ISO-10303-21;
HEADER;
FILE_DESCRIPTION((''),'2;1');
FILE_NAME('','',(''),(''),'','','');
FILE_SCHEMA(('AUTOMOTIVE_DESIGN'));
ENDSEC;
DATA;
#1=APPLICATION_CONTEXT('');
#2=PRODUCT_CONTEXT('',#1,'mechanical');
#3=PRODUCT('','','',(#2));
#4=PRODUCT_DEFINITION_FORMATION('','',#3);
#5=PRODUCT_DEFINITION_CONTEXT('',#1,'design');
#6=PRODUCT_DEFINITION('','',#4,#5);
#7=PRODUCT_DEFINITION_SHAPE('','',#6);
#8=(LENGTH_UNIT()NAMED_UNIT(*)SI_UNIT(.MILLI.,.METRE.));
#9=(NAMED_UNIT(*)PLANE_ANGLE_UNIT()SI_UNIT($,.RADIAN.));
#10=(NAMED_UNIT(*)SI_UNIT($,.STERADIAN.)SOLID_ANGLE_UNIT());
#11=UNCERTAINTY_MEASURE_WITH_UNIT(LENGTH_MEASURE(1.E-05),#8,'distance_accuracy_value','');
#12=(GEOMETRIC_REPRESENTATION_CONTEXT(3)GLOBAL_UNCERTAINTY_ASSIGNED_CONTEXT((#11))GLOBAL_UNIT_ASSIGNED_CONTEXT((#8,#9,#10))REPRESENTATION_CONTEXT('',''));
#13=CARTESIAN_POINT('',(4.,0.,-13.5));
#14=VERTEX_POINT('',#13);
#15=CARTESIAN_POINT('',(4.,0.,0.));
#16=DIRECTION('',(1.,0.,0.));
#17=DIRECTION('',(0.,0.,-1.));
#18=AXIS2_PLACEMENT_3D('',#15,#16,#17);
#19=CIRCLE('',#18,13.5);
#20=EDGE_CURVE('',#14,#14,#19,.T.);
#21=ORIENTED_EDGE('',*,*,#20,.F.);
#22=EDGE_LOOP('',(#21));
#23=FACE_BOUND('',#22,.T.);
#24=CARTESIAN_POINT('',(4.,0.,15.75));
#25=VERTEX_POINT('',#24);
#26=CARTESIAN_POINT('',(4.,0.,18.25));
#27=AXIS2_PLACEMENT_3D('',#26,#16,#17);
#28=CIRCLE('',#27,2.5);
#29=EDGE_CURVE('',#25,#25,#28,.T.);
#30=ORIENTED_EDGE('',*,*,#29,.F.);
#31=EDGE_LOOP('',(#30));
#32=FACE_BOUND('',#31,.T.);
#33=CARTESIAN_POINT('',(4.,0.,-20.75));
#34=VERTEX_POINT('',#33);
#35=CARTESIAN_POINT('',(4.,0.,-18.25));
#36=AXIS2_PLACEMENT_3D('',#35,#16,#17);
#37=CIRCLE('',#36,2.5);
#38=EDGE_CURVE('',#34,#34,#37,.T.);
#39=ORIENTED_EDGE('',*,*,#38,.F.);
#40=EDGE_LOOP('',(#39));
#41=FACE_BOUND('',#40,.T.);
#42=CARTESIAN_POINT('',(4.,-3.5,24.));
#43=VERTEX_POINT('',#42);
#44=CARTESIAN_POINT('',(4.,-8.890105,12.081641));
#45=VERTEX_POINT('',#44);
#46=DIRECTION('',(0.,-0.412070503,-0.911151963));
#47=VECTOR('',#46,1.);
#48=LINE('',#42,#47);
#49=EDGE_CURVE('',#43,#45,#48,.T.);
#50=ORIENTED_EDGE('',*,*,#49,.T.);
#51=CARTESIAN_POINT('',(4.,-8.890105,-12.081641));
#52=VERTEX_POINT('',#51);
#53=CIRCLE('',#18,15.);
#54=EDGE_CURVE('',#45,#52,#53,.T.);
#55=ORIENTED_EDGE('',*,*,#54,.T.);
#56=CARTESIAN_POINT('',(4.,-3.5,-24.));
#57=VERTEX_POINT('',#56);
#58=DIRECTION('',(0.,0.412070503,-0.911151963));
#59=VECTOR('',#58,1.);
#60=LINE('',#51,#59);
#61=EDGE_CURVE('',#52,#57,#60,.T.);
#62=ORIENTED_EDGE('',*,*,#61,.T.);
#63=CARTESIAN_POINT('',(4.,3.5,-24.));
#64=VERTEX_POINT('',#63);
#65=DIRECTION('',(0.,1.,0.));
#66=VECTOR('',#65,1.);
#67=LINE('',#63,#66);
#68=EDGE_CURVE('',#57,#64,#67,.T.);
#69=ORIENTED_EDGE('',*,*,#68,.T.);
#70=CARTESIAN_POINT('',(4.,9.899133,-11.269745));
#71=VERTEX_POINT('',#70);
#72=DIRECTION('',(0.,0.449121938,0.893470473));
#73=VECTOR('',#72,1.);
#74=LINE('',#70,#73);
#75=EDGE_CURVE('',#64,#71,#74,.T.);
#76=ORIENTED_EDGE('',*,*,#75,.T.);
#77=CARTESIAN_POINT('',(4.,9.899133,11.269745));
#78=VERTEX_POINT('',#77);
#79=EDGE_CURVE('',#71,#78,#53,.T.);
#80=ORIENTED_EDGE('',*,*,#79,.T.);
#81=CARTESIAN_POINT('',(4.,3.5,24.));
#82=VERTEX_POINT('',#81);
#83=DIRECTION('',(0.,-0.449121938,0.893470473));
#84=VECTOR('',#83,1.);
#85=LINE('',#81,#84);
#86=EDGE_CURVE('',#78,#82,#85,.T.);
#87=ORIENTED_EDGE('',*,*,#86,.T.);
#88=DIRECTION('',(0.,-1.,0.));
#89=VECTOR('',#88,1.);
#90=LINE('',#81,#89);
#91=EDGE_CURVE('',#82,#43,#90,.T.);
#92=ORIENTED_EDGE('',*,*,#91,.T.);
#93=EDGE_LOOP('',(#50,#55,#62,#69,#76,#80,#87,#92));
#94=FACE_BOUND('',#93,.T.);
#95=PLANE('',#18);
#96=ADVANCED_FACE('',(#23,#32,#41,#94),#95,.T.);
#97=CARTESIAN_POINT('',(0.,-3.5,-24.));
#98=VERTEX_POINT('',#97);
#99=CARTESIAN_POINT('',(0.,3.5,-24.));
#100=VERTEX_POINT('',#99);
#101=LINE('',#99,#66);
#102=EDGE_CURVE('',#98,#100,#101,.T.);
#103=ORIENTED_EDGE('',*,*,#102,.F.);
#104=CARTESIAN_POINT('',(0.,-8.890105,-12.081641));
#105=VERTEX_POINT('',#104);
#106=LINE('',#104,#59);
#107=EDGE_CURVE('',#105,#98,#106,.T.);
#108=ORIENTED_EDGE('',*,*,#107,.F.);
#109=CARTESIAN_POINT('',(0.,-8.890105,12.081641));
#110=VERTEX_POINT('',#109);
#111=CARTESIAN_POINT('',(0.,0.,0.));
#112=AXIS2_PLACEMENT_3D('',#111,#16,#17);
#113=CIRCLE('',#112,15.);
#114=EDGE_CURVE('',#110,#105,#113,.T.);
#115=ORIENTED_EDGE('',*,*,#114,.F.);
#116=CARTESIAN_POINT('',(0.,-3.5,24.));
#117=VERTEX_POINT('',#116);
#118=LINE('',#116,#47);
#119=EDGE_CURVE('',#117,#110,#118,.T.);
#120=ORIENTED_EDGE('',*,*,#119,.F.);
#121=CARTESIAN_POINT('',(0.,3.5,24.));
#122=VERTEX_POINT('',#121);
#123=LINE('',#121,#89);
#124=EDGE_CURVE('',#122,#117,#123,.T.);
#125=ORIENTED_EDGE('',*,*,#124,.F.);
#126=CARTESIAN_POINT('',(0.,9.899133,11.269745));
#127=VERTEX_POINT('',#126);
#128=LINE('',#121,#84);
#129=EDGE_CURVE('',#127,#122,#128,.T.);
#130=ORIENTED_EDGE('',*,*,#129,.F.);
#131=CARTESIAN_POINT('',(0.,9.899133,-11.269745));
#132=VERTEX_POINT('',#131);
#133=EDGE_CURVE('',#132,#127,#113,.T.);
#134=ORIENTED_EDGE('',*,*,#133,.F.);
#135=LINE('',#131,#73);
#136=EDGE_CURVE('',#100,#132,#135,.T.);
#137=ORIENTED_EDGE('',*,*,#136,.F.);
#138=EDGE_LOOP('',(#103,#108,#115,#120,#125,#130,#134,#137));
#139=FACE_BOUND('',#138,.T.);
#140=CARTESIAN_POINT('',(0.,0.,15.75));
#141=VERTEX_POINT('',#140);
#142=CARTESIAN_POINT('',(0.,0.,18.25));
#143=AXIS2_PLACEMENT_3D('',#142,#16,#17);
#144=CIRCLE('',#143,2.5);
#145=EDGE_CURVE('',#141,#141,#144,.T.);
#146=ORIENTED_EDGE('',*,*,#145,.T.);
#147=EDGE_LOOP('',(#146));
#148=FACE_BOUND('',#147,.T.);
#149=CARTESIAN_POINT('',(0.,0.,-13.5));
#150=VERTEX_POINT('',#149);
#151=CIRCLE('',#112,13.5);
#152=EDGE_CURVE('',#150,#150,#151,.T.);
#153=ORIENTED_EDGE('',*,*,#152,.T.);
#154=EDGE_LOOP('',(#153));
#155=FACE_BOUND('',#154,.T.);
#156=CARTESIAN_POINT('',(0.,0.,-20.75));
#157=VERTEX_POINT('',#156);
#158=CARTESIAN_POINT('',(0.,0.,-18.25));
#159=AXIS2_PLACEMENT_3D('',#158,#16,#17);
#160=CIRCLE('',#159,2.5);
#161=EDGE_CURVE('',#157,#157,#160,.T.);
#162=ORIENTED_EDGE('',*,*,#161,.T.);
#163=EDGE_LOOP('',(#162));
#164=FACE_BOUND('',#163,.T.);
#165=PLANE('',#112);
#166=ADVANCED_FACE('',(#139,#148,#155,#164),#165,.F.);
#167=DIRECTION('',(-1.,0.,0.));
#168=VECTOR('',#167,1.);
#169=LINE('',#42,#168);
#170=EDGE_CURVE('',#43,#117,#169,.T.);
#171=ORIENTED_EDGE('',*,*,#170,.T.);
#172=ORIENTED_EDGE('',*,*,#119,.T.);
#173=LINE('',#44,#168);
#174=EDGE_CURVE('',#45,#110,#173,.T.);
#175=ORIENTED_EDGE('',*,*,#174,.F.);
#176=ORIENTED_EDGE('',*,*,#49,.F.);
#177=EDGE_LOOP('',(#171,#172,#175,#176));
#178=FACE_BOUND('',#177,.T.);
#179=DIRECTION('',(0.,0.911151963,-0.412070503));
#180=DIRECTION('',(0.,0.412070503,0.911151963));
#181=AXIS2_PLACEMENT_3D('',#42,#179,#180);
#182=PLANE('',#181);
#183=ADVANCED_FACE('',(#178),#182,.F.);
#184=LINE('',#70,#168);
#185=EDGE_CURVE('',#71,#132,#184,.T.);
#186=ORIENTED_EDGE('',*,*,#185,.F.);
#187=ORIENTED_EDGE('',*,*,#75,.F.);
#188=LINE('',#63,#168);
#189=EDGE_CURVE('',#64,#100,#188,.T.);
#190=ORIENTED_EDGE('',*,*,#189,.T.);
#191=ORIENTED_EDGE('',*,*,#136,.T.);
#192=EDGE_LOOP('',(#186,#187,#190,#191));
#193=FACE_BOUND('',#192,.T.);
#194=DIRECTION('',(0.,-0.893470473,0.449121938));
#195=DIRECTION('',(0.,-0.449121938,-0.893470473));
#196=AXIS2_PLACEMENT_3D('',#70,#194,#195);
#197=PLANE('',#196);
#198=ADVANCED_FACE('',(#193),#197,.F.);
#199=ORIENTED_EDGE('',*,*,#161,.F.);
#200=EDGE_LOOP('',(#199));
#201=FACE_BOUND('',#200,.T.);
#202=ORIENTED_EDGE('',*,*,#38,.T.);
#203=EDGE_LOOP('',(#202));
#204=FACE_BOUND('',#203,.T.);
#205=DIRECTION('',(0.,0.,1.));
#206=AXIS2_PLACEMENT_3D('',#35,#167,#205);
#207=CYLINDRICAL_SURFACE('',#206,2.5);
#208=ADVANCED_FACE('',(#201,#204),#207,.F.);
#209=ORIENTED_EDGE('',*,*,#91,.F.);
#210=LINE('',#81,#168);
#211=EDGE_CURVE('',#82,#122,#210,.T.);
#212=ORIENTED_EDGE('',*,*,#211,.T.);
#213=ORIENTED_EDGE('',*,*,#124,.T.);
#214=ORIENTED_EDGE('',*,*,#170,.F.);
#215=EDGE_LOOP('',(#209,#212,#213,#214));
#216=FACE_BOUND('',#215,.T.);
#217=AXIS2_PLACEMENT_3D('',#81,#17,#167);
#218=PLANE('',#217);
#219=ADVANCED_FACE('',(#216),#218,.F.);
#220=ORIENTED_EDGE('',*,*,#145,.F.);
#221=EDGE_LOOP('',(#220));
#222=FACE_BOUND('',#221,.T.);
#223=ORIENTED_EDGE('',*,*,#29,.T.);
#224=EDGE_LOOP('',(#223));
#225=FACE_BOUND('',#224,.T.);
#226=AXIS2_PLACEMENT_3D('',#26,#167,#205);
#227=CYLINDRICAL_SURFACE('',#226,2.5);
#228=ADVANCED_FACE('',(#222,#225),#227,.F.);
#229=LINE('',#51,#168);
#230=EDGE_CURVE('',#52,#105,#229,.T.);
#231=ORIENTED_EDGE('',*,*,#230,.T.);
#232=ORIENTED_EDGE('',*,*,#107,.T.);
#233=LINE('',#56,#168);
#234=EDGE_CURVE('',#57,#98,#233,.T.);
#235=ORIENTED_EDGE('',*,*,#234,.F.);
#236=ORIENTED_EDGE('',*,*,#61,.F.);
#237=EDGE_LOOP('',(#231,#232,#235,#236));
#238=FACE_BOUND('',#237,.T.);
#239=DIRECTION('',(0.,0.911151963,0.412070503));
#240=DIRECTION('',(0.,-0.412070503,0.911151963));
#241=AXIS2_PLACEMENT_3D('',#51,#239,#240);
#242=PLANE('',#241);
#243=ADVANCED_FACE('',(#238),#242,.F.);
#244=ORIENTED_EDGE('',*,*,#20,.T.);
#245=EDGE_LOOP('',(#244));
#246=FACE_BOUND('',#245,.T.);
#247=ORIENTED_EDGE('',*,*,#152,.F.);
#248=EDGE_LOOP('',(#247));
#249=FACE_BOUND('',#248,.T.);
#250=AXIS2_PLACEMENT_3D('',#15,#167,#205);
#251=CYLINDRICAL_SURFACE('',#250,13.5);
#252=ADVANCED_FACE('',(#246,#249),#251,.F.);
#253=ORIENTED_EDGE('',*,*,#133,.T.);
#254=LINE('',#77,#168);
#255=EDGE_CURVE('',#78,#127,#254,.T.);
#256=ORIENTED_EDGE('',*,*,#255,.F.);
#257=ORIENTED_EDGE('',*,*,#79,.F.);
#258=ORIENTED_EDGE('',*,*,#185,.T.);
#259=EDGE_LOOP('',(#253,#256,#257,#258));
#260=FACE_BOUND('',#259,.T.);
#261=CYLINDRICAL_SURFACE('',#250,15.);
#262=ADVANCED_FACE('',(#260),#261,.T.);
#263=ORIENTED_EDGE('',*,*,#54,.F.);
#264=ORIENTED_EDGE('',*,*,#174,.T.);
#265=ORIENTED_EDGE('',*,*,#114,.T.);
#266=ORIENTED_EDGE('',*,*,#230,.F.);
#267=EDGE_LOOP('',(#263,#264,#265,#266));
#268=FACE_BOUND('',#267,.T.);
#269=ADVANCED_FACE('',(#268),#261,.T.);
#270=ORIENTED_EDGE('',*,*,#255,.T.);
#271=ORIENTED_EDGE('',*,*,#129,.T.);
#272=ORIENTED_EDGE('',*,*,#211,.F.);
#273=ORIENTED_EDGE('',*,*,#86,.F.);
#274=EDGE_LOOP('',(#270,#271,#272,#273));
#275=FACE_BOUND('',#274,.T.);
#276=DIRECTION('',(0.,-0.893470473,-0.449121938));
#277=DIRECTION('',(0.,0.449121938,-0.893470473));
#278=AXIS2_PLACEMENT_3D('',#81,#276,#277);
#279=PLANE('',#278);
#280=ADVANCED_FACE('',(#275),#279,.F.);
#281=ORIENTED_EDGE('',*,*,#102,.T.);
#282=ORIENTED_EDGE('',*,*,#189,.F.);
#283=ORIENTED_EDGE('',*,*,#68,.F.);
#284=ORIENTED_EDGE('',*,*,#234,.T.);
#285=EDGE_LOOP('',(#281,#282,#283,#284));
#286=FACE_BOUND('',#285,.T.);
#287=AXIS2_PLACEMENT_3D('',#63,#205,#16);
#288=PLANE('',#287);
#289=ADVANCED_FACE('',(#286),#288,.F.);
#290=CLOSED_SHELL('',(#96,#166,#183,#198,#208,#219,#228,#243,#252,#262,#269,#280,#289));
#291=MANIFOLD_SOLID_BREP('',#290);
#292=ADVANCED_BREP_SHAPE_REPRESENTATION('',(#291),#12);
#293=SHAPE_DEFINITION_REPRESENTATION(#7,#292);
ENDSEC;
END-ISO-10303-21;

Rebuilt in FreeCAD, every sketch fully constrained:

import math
import FreeCAD as App
import Part
import Sketcher

V = App.Vector

doc = App.newDocument("Part")
body = doc.addObject("PartDesign::Body", "Body")

# Sketch on YZ plane
sketch1 = body.newObject("Sketcher::SketchObject", "Sketch")
sketch1.AttachmentSupport = (doc.getObject("YZ_Plane"), [""])
sketch1.MapMode = "FlatFace"
sketch1.addGeometry([
    Part.LineSegment(V(3.5, 24, 0), V(-3.5, 24, 0)),  # 0
    Part.LineSegment(V(-3.5, 24, 0), V(-8.9, 12.1, 0)),  # 1
    Part.ArcOfCircle(Part.Circle(V(0, 0, 0), V(0, 0, 1), 15), math.radians(126), math.radians(234)),  # 2
    Part.LineSegment(V(-8.9, -12.1, 0), V(-3.5, -24, 0)),  # 3
    Part.LineSegment(V(-3.5, -24, 0), V(3.5, -24, 0)),  # 4
    Part.LineSegment(V(3.5, -24, 0), V(9.9, -11.3, 0)),  # 5
    Part.ArcOfCircle(Part.Circle(V(0, 0, 0), V(0, 0, 1), 15), math.radians(-49), math.radians(49)),  # 6
    Part.LineSegment(V(9.9, 11.3, 0), V(3.5, 24, 0)),  # 7
    Part.Circle(V(0, 18.2, 0), V(0, 0, 1), 2.5),  # 8
    Part.Circle(V(0, 0, 0), V(0, 0, 1), 13.5),  # 9
    Part.Circle(V(0, -18.2, 0), V(0, 0, 1), 2.5),  # 10
], False)
sketch1.addConstraint([
    Sketcher.Constraint("Coincident", 0, 2, 1, 1),
    Sketcher.Constraint("Coincident", 1, 2, 2, 1),
    Sketcher.Constraint("Coincident", 2, 2, 3, 1),
    Sketcher.Constraint("Coincident", 3, 2, 4, 1),
    Sketcher.Constraint("Coincident", 4, 2, 5, 1),
    Sketcher.Constraint("Coincident", 5, 2, 6, 1),
    Sketcher.Constraint("Coincident", 6, 2, 7, 1),
    Sketcher.Constraint("Coincident", 7, 2, 0, 1),
    Sketcher.Constraint("Horizontal", 0),
    Sketcher.Constraint("Horizontal", 4),
    Sketcher.Constraint("Coincident", 2, 3, -1, 1),
    Sketcher.Constraint("Coincident", 6, 3, -1, 1),
    Sketcher.Constraint("Coincident", 9, 3, -1, 1),
    Sketcher.Constraint("Equal", 2, 6),
    Sketcher.Constraint("Equal", 8, 10),
    Sketcher.Constraint("Symmetric", 8, 3, 10, 3, -1, 1),
    Sketcher.Constraint("Symmetric", 0, 2, 4, 2, -1, 1),
    Sketcher.Constraint("PointOnObject", 8, 3, -2),
    Sketcher.Constraint("Vertical", 1, 2, 2, 2),
    Sketcher.Constraint("Vertical", 0, 2, 3, 2),
    Sketcher.Constraint("Vertical", 5, 2, 6, 2),
    Sketcher.Constraint("Vertical", 4, 2, 7, 2),
    Sketcher.Constraint("Diameter", 8, 5.0),
    Sketcher.Constraint("Diameter", 9, 27.0),
    Sketcher.Constraint("Radius", 2, 15.0),
    Sketcher.Constraint("DistanceX", 0, 2, 0, 1, 7.0),
    Sketcher.Constraint("DistanceY", -1, 1, 0, 2, 24.0),
    Sketcher.Constraint("DistanceY", 10, 3, 8, 3, 36.5),
    Sketcher.Constraint("Distance", 1, 13.08054),
    Sketcher.Constraint("Distance", 5, 14.248098),
])
pad1 = body.newObject("PartDesign::Pad", "Pad")
pad1.Profile = sketch1
pad1.Length = 4

doc.recompute()
